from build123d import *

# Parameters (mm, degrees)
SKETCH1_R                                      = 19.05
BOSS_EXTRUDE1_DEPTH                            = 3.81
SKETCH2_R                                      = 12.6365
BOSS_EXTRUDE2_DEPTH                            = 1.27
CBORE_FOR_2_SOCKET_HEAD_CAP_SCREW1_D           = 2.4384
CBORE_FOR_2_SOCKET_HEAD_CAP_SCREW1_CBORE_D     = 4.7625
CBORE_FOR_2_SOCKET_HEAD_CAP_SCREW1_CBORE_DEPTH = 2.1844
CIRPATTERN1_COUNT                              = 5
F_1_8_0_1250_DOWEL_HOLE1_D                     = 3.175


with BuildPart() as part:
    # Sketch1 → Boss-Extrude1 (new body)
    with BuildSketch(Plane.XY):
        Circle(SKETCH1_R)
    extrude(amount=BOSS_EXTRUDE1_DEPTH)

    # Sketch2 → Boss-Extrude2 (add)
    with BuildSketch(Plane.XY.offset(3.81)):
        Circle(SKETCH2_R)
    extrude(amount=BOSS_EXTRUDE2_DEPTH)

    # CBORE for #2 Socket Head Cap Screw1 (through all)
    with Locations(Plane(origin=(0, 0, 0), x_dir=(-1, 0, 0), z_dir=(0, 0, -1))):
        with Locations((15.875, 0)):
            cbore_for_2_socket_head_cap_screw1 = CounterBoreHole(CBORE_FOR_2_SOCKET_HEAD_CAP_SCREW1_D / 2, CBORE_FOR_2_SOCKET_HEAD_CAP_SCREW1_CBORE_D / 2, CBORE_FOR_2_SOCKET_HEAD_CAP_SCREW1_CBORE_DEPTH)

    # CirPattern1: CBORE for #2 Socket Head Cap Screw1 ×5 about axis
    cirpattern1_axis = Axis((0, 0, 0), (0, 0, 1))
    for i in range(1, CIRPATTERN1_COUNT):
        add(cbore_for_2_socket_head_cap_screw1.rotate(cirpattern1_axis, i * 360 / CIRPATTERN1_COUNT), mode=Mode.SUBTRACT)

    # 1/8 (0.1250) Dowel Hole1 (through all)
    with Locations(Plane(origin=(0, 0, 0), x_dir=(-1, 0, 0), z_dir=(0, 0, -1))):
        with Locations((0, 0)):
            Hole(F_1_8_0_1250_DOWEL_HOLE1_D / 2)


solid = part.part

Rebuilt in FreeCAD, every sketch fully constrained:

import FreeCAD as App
import Part
import Sketcher
Q = App.Units.Quantity

doc = App.newDocument("Part")
params = doc.addObject("Spreadsheet::Sheet", "Params")
for row, (alias, value) in enumerate([
    ("sketch1_diameter", "1.5 in"),
    ("pad1_length", "0.15 in"),
    ("sketch2_diameter", "0.995 in"),
    ("pad2_length", "0.05 in"),
    ("sketch3_diameter", "0.096 in"),
    ("hole_diameter", "0.096 in"),
    ("hole_cbore_diameter", "0.1875 in"),
    ("hole_cbore_depth", "0.086 in"),
    ("sketch4_diameter", "0.125 in"),
    ("hole2_diameter", "0.125 in"),
], start=1):
    params.set(f"A{row}", alias)
    params.set(f"B{row}", "=" + value)
    params.setAlias(f"B{row}", alias)

body = doc.addObject("PartDesign::Body", "Body")

# Sketch on XY plane
sketch1 = doc.addObject("Sketcher::SketchObject", "Sketch")
body.addObject(sketch1)
sketch1.AttachmentSupport = (doc.XY_Plane, [""])
sketch1.MapMode = "FlatFace"
sketch1.addGeometry(Part.Circle(App.Vector(0, 0, 0), App.Vector(0, 0, 1), 19), False)
sketch1.addConstraint(Sketcher.Constraint("Coincident", 0, 3, -1, 1))
sketch1.addConstraint(Sketcher.Constraint("Diameter", 0, Q("1.5 in")))
sketch1.setExpression("Constraints[1]", "Params.sketch1_diameter")
pad1 = doc.addObject("PartDesign::Pad", "Pad")
body.addObject(pad1)
pad1.Profile = sketch1
pad1.setExpression("Length", "Params.pad1_length")

# Sketch on XY plane
sketch2 = doc.addObject("Sketcher::SketchObject", "Sketch001")
body.addObject(sketch2)
sketch2.AttachmentSupport = (doc.XY_Plane, [""])
sketch2.MapMode = "FlatFace"
sketch2.AttachmentOffset = App.Placement(App.Vector(0, 0, 0.15 * 25.4), App.Rotation())
sketch2.addGeometry(Part.Circle(App.Vector(0, 0, 0), App.Vector(0, 0, 1), 13), False)
sketch2.addConstraint(Sketcher.Constraint("Coincident", 0, 3, -1, 1))
sketch2.addConstraint(Sketcher.Constraint("Diameter", 0, Q("0.995 in")))
sketch2.setExpression("Constraints[1]", "Params.sketch2_diameter")
pad2 = doc.addObject("PartDesign::Pad", "Pad001")
body.addObject(pad2)
pad2.Profile = sketch2
pad2.setExpression("Length", "Params.pad2_length")

# Sketch on XY plane
sketch3 = doc.addObject("Sketcher::SketchObject", "Sketch002")
body.addObject(sketch3)
sketch3.AttachmentSupport = (doc.XY_Plane, [""])
sketch3.MapMode = "FlatFace"
sketch3.addGeometry(Part.Circle(App.Vector(-15.9, 0, 0), App.Vector(0, 0, 1), 1.2), False)
sketch3.addConstraint(Sketcher.Constraint("PointOnObject", 0, 3, -1))
sketch3.addConstraint(Sketcher.Constraint("Diameter", 0, Q("0.096 in")))
sketch3.addConstraint(Sketcher.Constraint("DistanceX", 0, 3, -1, 1, Q("0.625 in")))
sketch3.setExpression("Constraints[1]", "Params.sketch3_diameter")
doc.recompute()
hole = doc.addObject("PartDesign::Hole", "Hole")
body.addObject(hole)
hole.Profile = sketch3
hole.ThreadType = "None"
hole.setExpression("Diameter", "Params.hole_diameter")
hole.DepthType = "ThroughAll"
hole.HoleCutType = "Counterbore"
hole.setExpression("HoleCutDiameter", "Params.hole_cbore_diameter")
hole.setExpression("HoleCutDepth", "Params.hole_cbore_depth")
hole.Reversed = True
doc.recompute()

polarpattern = doc.addObject("PartDesign::PolarPattern", "PolarPattern")
body.addObject(polarpattern)
polarpattern.Originals = [hole]
polarpattern.Axis = (doc.Z_Axis, [""])
polarpattern.Angle = 360
polarpattern.Occurrences = 5
body.Tip = polarpattern

# Sketch on XY plane
sketch4 = doc.addObject("Sketcher::SketchObject", "Sketch003")
body.addObject(sketch4)
sketch4.AttachmentSupport = (doc.XY_Plane, [""])
sketch4.MapMode = "FlatFace"
sketch4.addGeometry(Part.Circle(App.Vector(0, 0, 0), App.Vector(0, 0, 1), 1.6), False)
sketch4.addConstraint(Sketcher.Constraint("Coincident", 0, 3, -1, 1))
sketch4.addConstraint(Sketcher.Constraint("Diameter", 0, Q("0.125 in")))
sketch4.setExpression("Constraints[1]", "Params.sketch4_diameter")
doc.recompute()
hole2 = doc.addObject("PartDesign::Hole", "Hole001")
body.addObject(hole2)
hole2.Profile = sketch4
hole2.ThreadType = "None"
hole2.setExpression("Diameter", "Params.hole2_diameter")
hole2.DepthType = "ThroughAll"
hole2.Reversed = True

doc.recompute()
